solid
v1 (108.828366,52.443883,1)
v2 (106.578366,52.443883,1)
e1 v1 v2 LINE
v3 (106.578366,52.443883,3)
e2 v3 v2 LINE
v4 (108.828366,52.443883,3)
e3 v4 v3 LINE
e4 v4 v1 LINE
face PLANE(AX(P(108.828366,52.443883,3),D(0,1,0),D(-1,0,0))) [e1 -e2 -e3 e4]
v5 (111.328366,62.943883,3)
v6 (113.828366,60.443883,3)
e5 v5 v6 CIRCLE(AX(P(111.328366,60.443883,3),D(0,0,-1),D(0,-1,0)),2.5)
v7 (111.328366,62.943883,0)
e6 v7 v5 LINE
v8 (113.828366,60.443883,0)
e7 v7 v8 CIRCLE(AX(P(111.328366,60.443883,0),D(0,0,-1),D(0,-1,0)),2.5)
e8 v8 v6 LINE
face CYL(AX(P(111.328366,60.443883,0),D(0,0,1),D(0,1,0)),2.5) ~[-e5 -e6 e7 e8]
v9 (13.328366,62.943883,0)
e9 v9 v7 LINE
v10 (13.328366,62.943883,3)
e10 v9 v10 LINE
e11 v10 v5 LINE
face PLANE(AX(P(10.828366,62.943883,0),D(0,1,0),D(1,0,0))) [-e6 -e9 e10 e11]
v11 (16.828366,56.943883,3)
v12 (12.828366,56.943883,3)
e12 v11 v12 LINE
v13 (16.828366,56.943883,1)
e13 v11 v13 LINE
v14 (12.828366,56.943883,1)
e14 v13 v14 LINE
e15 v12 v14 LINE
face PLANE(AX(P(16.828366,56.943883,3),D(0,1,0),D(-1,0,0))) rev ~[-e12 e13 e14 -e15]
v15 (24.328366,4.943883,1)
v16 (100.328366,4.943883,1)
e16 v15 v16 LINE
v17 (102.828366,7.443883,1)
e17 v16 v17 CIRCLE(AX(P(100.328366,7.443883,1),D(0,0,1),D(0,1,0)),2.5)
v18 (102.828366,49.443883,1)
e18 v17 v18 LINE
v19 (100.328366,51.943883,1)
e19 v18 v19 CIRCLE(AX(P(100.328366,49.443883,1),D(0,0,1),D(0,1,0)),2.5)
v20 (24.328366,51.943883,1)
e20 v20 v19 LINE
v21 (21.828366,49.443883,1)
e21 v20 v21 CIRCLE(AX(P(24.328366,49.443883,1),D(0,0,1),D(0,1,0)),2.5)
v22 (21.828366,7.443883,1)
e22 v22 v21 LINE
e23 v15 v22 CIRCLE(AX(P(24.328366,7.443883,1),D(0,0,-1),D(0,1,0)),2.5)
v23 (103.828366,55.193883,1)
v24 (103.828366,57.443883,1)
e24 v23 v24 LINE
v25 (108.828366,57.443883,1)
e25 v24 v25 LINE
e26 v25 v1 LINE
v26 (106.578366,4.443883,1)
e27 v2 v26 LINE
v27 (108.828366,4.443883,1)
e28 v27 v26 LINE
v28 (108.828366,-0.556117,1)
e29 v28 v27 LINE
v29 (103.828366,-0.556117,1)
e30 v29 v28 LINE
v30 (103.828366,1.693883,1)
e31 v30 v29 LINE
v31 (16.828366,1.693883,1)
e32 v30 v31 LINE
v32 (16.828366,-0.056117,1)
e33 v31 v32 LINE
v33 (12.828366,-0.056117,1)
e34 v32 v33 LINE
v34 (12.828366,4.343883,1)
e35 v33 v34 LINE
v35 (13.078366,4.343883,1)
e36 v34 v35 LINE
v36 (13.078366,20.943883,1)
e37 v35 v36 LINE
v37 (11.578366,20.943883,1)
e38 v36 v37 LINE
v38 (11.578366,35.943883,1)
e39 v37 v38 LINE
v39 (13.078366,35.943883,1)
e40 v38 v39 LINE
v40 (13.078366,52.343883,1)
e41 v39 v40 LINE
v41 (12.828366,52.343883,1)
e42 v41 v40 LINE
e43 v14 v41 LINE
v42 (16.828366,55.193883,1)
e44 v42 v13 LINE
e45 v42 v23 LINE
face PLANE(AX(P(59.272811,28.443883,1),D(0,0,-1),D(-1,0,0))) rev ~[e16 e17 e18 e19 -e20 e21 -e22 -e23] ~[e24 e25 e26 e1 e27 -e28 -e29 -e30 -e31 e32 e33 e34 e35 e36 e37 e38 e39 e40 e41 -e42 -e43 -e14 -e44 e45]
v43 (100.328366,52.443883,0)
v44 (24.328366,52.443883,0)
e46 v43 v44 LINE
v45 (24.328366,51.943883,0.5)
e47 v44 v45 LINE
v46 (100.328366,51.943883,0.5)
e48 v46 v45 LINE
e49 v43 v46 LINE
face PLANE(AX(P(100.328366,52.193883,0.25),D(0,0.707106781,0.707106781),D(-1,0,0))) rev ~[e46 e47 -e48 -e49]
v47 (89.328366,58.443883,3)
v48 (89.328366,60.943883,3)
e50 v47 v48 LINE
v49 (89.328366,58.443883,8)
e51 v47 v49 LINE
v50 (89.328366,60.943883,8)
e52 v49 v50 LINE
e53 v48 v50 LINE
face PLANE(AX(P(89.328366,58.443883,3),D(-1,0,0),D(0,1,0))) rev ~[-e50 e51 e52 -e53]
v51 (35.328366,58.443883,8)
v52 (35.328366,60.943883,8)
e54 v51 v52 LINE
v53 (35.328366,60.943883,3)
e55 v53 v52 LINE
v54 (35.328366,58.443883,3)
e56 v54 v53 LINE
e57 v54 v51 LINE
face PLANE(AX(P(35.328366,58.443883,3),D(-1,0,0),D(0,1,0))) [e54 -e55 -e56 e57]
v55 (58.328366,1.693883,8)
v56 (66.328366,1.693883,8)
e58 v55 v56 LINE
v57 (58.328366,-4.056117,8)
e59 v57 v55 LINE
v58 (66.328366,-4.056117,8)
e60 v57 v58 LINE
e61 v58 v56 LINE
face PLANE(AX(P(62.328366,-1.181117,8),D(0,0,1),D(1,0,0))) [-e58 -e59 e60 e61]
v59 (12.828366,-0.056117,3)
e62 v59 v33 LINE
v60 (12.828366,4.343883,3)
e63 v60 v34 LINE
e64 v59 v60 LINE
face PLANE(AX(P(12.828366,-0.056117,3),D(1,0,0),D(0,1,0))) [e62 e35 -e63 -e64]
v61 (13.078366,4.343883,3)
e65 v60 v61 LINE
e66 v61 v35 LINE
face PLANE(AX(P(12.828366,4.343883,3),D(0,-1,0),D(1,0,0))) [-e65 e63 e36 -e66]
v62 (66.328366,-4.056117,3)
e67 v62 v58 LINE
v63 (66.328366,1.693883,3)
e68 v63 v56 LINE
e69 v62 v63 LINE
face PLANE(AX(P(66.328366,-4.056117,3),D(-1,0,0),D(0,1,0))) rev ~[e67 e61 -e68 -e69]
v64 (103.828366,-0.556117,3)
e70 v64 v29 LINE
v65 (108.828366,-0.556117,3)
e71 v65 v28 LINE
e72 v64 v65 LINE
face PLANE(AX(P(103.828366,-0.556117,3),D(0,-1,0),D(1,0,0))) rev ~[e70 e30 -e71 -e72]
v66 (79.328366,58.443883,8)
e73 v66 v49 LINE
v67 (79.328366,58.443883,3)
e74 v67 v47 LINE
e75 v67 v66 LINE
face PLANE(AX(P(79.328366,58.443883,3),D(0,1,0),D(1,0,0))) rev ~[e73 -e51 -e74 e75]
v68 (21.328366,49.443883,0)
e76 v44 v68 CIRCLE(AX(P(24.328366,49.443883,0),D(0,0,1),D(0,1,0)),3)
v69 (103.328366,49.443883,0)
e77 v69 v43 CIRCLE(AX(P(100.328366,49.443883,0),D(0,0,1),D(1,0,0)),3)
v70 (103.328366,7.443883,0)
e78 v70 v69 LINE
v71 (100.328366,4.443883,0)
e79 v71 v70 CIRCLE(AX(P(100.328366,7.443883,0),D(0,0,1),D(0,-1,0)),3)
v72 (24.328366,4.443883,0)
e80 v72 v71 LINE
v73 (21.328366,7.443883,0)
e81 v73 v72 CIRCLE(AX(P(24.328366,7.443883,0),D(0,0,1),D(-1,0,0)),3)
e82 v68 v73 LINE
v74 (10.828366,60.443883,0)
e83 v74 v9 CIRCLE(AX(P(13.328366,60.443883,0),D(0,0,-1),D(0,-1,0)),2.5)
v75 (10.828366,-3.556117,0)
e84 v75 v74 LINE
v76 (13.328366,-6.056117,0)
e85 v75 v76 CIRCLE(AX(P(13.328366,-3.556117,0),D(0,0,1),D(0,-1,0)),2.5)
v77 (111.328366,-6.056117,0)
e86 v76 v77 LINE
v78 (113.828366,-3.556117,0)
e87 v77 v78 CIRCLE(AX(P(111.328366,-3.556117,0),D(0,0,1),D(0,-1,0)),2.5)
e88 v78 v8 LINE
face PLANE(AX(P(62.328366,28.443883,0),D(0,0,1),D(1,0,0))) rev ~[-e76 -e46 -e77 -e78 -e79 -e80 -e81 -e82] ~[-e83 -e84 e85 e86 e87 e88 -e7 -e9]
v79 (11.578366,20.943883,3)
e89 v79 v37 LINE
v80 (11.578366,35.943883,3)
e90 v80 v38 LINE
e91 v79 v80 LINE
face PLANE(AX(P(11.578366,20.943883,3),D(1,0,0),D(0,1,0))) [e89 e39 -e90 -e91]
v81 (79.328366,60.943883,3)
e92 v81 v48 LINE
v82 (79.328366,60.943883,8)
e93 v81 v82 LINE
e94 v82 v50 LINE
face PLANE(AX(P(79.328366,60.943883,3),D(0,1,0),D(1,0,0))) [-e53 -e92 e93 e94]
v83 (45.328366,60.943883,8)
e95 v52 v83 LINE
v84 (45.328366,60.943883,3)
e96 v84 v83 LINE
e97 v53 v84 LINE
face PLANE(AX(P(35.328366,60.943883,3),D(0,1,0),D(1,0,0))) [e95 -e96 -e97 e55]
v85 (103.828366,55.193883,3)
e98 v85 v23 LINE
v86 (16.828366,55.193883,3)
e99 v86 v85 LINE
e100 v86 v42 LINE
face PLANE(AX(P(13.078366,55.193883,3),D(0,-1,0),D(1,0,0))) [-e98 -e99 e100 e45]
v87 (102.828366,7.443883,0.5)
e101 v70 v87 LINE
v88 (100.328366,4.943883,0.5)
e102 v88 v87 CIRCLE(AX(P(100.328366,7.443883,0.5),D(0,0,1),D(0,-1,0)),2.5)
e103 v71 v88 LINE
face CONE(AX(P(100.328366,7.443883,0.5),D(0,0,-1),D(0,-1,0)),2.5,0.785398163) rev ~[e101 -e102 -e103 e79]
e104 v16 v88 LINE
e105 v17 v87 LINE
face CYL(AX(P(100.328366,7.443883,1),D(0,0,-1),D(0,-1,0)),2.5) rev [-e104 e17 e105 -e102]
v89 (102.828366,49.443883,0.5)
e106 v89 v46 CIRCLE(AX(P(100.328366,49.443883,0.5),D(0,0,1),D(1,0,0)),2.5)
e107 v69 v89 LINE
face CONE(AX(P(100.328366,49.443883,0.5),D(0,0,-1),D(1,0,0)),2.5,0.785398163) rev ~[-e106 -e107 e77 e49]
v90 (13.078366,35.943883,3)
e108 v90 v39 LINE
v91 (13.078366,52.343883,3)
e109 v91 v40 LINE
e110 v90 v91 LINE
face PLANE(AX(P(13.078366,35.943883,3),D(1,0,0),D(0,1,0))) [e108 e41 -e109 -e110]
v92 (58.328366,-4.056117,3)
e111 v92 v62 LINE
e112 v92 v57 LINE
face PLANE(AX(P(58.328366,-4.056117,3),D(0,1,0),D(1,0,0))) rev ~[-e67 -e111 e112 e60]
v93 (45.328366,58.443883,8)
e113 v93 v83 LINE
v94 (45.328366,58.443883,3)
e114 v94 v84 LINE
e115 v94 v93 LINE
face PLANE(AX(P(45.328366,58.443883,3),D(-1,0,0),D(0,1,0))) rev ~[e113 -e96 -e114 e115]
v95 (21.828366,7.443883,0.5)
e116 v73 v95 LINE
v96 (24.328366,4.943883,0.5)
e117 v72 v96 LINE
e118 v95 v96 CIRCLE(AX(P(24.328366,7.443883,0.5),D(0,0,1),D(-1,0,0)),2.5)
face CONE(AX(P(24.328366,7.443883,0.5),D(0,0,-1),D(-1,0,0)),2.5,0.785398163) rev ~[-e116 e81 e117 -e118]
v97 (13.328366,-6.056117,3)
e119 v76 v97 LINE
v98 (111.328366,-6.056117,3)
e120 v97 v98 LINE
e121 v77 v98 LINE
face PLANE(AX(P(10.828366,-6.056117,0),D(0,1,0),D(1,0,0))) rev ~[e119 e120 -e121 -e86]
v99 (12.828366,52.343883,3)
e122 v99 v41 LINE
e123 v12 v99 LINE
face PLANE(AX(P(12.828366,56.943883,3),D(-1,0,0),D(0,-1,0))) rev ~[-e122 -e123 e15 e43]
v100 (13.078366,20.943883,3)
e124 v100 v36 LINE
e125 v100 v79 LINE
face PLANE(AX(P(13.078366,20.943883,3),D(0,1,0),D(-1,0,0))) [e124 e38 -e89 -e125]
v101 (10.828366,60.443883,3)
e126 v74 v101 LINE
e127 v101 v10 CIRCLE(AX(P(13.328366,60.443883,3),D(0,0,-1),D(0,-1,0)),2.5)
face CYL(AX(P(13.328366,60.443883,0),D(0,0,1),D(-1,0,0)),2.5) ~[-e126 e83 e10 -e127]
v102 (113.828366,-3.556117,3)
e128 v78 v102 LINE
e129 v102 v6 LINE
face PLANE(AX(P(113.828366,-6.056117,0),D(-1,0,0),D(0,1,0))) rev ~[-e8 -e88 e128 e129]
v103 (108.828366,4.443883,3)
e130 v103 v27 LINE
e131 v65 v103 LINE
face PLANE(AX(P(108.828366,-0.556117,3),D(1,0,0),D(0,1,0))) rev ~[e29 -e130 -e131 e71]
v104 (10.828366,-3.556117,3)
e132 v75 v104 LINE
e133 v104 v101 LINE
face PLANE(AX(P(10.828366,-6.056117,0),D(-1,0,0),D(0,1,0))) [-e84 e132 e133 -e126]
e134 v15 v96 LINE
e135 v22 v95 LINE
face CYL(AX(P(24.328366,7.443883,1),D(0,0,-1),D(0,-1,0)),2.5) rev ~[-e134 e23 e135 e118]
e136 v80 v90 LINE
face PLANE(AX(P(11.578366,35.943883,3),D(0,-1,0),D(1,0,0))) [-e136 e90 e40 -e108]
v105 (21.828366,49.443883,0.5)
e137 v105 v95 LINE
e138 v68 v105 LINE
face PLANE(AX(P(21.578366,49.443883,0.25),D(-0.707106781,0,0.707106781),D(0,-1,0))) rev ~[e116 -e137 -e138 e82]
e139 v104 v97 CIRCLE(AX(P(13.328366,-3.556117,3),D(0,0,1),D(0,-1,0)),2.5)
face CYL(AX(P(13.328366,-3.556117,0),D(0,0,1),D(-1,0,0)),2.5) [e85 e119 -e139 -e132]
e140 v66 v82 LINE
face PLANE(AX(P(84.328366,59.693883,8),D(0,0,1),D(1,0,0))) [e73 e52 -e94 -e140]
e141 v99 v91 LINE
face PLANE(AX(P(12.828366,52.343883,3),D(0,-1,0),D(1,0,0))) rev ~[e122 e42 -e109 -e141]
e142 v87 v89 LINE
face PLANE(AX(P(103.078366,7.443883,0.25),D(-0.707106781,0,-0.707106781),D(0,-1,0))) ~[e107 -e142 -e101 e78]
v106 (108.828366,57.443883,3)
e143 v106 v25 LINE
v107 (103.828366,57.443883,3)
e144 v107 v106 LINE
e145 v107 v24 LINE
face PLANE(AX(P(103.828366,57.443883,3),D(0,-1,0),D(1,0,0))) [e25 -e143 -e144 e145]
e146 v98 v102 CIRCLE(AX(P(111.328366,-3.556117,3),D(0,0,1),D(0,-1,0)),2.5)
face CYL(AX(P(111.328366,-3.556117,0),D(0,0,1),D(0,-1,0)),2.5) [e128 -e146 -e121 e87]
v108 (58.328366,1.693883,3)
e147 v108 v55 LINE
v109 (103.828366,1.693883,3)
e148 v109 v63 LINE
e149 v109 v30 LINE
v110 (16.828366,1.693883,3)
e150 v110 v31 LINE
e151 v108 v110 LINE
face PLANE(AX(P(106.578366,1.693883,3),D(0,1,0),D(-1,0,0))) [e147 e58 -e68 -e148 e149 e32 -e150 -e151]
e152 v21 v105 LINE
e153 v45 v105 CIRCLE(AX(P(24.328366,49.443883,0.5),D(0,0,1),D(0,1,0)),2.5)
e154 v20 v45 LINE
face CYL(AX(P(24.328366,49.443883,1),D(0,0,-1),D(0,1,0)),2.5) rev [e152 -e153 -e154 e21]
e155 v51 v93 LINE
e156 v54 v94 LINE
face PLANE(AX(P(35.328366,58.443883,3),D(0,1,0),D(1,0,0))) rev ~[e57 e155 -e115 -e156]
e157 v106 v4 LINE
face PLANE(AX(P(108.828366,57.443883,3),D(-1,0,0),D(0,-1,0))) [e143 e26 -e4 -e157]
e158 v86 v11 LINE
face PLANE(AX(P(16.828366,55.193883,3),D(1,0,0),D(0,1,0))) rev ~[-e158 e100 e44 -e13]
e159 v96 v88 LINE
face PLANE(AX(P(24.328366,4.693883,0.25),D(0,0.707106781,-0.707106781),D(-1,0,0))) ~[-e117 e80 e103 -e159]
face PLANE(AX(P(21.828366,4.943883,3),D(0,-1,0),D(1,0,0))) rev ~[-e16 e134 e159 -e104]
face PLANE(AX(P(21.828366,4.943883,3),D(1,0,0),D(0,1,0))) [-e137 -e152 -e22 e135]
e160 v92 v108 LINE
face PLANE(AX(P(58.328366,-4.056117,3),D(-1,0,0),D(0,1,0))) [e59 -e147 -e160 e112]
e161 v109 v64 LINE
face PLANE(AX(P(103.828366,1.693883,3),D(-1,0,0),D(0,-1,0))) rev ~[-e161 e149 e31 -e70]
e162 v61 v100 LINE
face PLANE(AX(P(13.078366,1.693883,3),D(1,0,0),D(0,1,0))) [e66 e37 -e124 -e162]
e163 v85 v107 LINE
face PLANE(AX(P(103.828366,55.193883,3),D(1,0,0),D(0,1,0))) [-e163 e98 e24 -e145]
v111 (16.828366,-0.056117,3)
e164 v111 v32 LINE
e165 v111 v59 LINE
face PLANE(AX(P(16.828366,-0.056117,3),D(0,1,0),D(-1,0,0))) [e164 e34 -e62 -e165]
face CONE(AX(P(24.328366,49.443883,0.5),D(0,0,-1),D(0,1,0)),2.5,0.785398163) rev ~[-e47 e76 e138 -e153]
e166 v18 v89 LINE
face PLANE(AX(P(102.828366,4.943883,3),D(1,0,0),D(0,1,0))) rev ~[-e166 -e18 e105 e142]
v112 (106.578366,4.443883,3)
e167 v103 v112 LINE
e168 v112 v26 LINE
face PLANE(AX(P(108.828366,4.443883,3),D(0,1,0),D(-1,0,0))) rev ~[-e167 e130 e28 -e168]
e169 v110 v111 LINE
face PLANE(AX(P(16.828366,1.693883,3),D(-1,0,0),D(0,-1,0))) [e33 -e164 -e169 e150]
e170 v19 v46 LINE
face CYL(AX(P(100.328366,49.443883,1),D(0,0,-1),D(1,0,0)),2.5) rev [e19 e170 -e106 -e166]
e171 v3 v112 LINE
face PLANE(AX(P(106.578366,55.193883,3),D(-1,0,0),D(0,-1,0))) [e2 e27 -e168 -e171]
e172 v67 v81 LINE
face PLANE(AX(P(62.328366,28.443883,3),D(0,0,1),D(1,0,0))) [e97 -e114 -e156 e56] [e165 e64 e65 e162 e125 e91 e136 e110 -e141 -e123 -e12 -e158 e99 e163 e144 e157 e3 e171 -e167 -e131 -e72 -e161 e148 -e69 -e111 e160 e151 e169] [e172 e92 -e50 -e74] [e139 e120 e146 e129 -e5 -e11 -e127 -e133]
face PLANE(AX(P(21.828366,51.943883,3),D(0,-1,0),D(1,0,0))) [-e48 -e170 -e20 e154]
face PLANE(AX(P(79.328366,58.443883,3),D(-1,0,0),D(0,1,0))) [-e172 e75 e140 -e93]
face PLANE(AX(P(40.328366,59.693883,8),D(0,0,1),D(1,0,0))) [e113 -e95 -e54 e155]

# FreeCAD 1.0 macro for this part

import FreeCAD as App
import Part
import Sketcher


def edges_at(feature, points):
    """Names of the edges that pass closest to the given points."""
    edges = feature.Shape.Edges
    near = lambda p: min(range(len(edges)), key=lambda i: edges[i].distToShape(Part.Vertex(*p))[0])
    return sorted({f"Edge{near(p) + 1}" for p in points})


def add_polygon(sketch, points):
    """Adds a closed chain of lines whose ends are joined by coincident constraints."""
    first, n = sketch.GeometryCount, len(points)
    for a, b in zip(points, points[1:] + points[:1]):
        sketch.addGeometry(Part.LineSegment(App.Vector(*a, 0), App.Vector(*b, 0)), False)
    for i in range(n):
        sketch.addConstraint(Sketcher.Constraint("Coincident", first + i, 2, first + (i + 1) % n, 1))

doc = App.newDocument("Part")
body = doc.addObject("PartDesign::Body", "Body")

# Sketch on XY plane
sketch1 = doc.addObject("Sketcher::SketchObject", "Sketch")
body.addObject(sketch1)
sketch1.AttachmentSupport = (doc.XY_Plane, [""])
sketch1.MapMode = "FlatFace"
add_polygon(sketch1, [(11, 63), (11, -6), (114, -6), (114, 63)])  # lines 0-3
sketch1.addConstraint([
    Sketcher.Constraint("Vertical", 0),
    Sketcher.Constraint("Horizontal", 1),
    Sketcher.Constraint("Vertical", 2),
    Sketcher.Constraint("Horizontal", 3),
    Sketcher.Constraint("DistanceX", 1, 1, 1, 2, 103.0),
    Sketcher.Constraint("DistanceY", 0, 2, 0, 1, 69.0),
    Sketcher.Constraint("DistanceX", -1, 1, 0, 2, 10.828366),
    Sketcher.Constraint("DistanceY", 0, 2, -1, 1, 6.056117),
])
pad1 = doc.addObject("PartDesign::Pad", "Pad")
body.addObject(pad1)
pad1.Profile = sketch1
pad1.Length = 3

# Sketch on XY plane
sketch2 = doc.addObject("Sketcher::SketchObject", "Sketch001")
body.addObject(sketch2)
sketch2.AttachmentSupport = (doc.XY_Plane, [""])
sketch2.MapMode = "FlatFace"
sketch2.AttachmentOffset = App.Placement(App.Vector(0, 0, 3), App.Rotation())
add_polygon(sketch2, [(22, 52), (22, 5), (103, 5), (103, 52)])  # lines 0-3
sketch2.addConstraint([
    Sketcher.Constraint("Vertical", 0),
    Sketcher.Constraint("Horizontal", 1),
    Sketcher.Constraint("Vertical", 2),
    Sketcher.Constraint("Horizontal", 3),
    Sketcher.Constraint("DistanceX", 1, 1, 1, 2, 81.0),
    Sketcher.Constraint("DistanceY", 0, 2, 0, 1, 47.0),
    Sketcher.Constraint("DistanceX", -1, 1, 0, 2, 21.828366),
    Sketcher.Constraint("DistanceY", -1, 1, 0, 2, 4.943883),
])
pocket1 = doc.addObject("PartDesign::Pocket", "Pocket")
body.addObject(pocket1)
pocket1.Profile = sketch2
pocket1.Length = 3

# Sketch on XY plane
sketch3 = doc.addObject("Sketcher::SketchObject", "Sketch002")
body.addObject(sketch3)
sketch3.AttachmentSupport = (doc.XY_Plane, [""])
sketch3.MapMode = "FlatFace"
sketch3.AttachmentOffset = App.Placement(App.Vector(0, 0, 3), App.Rotation())
add_polygon(sketch3, [(106.6, 55.2), (13.1, 55.2), (13.1, 35.9), (11.6, 35.9), (11.6, 20.9), (13.1, 20.9), (13.1, 1.7), (106.6, 1.7)])  # lines 0-7
sketch3.addConstraint([
    Sketcher.Constraint("Horizontal", 0),
    Sketcher.Constraint("Vertical", 1),
    Sketcher.Constraint("Horizontal", 2),
    Sketcher.Constraint("Vertical", 3),
    Sketcher.Constraint("Horizontal", 4),
    Sketcher.Constraint("Vertical", 5),
    Sketcher.Constraint("Horizontal", 6),
    Sketcher.Constraint("Vertical", 7),
    Sketcher.Constraint("Vertical", 1, 2, 4, 2),
    Sketcher.Constraint("Equal", 1, 5),
    Sketcher.Constraint("DistanceY", 3, 2, 3, 1, 15.0),
    Sketcher.Constraint("DistanceX", 0, 2, 0, 1, 93.5),
    Sketcher.Constraint("DistanceX", 2, 2, 2, 1, 1.5),
    Sketcher.Constraint("DistanceY", 7, 1, 7, 2, 53.5),
    Sketcher.Constraint("DistanceX", -1, 1, 0, 2, 13.078366),
    Sketcher.Constraint("DistanceY", -1, 1, 0, 2, 55.193883),
])
pocket2 = doc.addObject("PartDesign::Pocket", "Pocket001")
body.addObject(pocket2)
pocket2.Profile = sketch3
pocket2.Length = 2
doc.recompute()

fillet = doc.addObject("PartDesign::Fillet", "Fillet")
body.addObject(fillet)
fillet.Base = (pocket2, edges_at(pocket2, [
    (113.828, -6.056, 1.5),
    (10.828, -6.056, 1.5),
    (10.828, 62.944, 1.5),
    (113.828, 62.944, 1.5),
]))
fillet.Radius = 2.5
doc.recompute()

fillet2 = doc.addObject("PartDesign::Fillet", "Fillet001")
body.addObject(fillet2)
fillet2.Base = (fillet, edges_at(fillet, [
    (21.828, 4.944, 0.5),
    (21.828, 51.944, 0.5),
    (102.828, 51.944, 0.5),
    (102.828, 4.944, 0.5),
]))
fillet2.Radius = 2.5
doc.recompute()

chamfer = doc.addObject("PartDesign::Chamfer", "Chamfer")
body.addObject(chamfer)
chamfer.Base = (fillet2, edges_at(fillet2, [
    (62.328, 4.944, 0),
    (102.828, 28.444, 0),
    (22.561, 51.212, 0),
    (22.561, 5.676, 0),
    (102.096, 5.676, 0),
    (102.096, 51.212, 0),
    (21.828, 28.444, 0),
    (62.328, 51.944, 0),
]))
chamfer.Size = 0.5

# Sketch on XY plane
sketch4 = doc.addObject("Sketcher::SketchObject", "Sketch003")
body.addObject(sketch4)
sketch4.AttachmentSupport = (doc.XY_Plane, [""])
sketch4.MapMode = "FlatFace"
sketch4.AttachmentOffset = App.Placement(App.Vector(0, 0, 3), App.Rotation())
add_polygon(sketch4, [(16.83, 55.19), (16.83, 56.94), (12.83, 56.94), (12.83, 52.34), (13.08, 52.34), (13.08, 55.19)])  # lines 0-5
add_polygon(sketch4, [(103.83, 57.44), (103.83, 55.19), (106.58, 55.19), (106.58, 52.44), (108.83, 52.44), (108.83, 57.44)])  # lines 6-11
add_polygon(sketch4, [(16.83, -0.06), (16.83, 1.69), (13.08, 1.69), (13.08, 4.34), (12.83, 4.34), (12.83, -0.06)])  # lines 12-17
add_polygon(sketch4, [(103.83, 1.69), (103.83, -0.56), (108.83, -0.56), (108.83, 4.44), (106.58, 4.44), (106.58, 1.69)])  # lines 18-23
sketch4.addConstraint([
    Sketcher.Constraint("Vertical", 0),
    Sketcher.Constraint("Horizontal", 1),
    Sketcher.Constraint("Vertical", 2),
    Sketcher.Constraint("Horizontal", 3),
    Sketcher.Constraint("Vertical", 4),
    Sketcher.Constraint("Horizontal", 5),
    Sketcher.Constraint("Vertical", 6),
    Sketcher.Constraint("Horizontal", 7),
    Sketcher.Constraint("Vertical", 8),
    Sketcher.Constraint("Horizontal", 9),
    Sketcher.Constraint("Vertical", 10),
    Sketcher.Constraint("Horizontal", 11),
    Sketcher.Constraint("Vertical", 12),
    Sketcher.Constraint("Horizontal", 13),
    Sketcher.Constraint("Vertical", 14),
    Sketcher.Constraint("Horizontal", 15),
    Sketcher.Constraint("Vertical", 16),
    Sketcher.Constraint("Horizontal", 17),
    Sketcher.Constraint("Vertical", 18),
    Sketcher.Constraint("Horizontal", 19),
    Sketcher.Constraint("Vertical", 20),
    Sketcher.Constraint("Horizontal", 21),
    Sketcher.Constraint("Vertical", 22),
    Sketcher.Constraint("Horizontal", 23),
    Sketcher.Constraint("Horizontal", 5, 2, 6, 2),
    Sketcher.Constraint("Horizontal", 13, 2, 22, 2),
    Sketcher.Constraint("Vertical", 5, 2, 12, 2),
    Sketcher.Constraint("Vertical", 4, 2, 13, 2),
    Sketcher.Constraint("Vertical", 2, 2, 15, 2),
    Sketcher.Constraint("Vertical", 11, 2, 18, 2),
    Sketcher.Constraint("Vertical", 10, 2, 19, 2),
    Sketcher.Constraint("Vertical", 8, 2, 21, 2),
    Sketcher.Constraint("Equal", 21, 6),
    Sketcher.Constraint("Equal", 23, 8),
    Sketcher.Constraint("Equal", 0, 12),
    Sketcher.Constraint("Equal", 6, 18),
    Sketcher.Constraint("Equal", 10, 20),
    Sketcher.Constraint("DistanceX", 1, 2, 1, 1, 4.0),
    Sketcher.Constraint("DistanceX", 11, 2, 11, 1, 5.0),
    Sketcher.Constraint("DistanceY", 2, 2, 2, 1, 4.6),
    Sketcher.Constraint("DistanceY", 16, 2, 16, 1, 4.4),
    Sketcher.Constraint("DistanceX", 5, 2, 6, 2, 87.0),
    Sketcher.Constraint("DistanceY", 14, 2, 3, 2, 48.0),
    Sketcher.Constraint("DistanceY", 18, 2, 8, 2, 53.0),
    Sketcher.Constraint("DistanceX", 3, 1, 3, 2, 0.25),
    Sketcher.Constraint("DistanceX", 7, 1, 7, 2, 2.75),
    Sketcher.Constraint("DistanceX", -1, 1, 0, 2, 16.828366),
    Sketcher.Constraint("DistanceY", -1, 1, 0, 2, 56.943883),
])
pocket3 = doc.addObject("PartDesign::Pocket", "Pocket002")
body.addObject(pocket3)
pocket3.Profile = sketch4
pocket3.Length = 2

# Sketch on XY plane
sketch5 = doc.addObject("Sketcher::SketchObject", "Sketch004")
body.addObject(sketch5)
sketch5.AttachmentSupport = (doc.XY_Plane, [""])
sketch5.MapMode = "FlatFace"
sketch5.AttachmentOffset = App.Placement(App.Vector(0, 0, 3), App.Rotation())
add_polygon(sketch5, [(79.3, 60.9), (79.3, 58.4), (89.3, 58.4), (89.3, 60.9)])  # lines 0-3
add_polygon(sketch5, [(35.3, 60.9), (35.3, 58.4), (45.3, 58.4), (45.3, 60.9)])  # lines 4-7
sketch5.addConstraint([
    Sketcher.Constraint("Vertical", 0),
    Sketcher.Constraint("Horizontal", 1),
    Sketcher.Constraint("Vertical", 2),
    Sketcher.Constraint("Horizontal", 3),
    Sketcher.Constraint("Vertical", 4),
    Sketcher.Constraint("Horizontal", 5),
    Sketcher.Constraint("Vertical", 6),
    Sketcher.Constraint("Horizontal", 7),
    Sketcher.Constraint("Horizontal", 1, 2, 4, 2),
    Sketcher.Constraint("Horizontal", 3, 2, 6, 2),
    Sketcher.Constraint("Equal", 3, 5),
    Sketcher.Constraint("DistanceX", 1, 1, 1, 2, 10.0),
    Sketcher.Constraint("DistanceY", 0, 2, 0, 1, 2.5),
    Sketcher.Constraint("DistanceX", 4, 2, 0, 2, 44.0),
    Sketcher.Constraint("DistanceX", -1, 1, 0, 2, 79.328366),
    Sketcher.Constraint("DistanceY", -1, 1, 0, 2, 58.443883),
])
pad2 = doc.addObject("PartDesign::Pad", "Pad001")
body.addObject(pad2)
pad2.Profile = sketch5
pad2.Length = 5

# Sketch on XY plane
sketch6 = doc.addObject("Sketcher::SketchObject", "Sketch005")
body.addObject(sketch6)
sketch6.AttachmentSupport = (doc.XY_Plane, [""])
sketch6.MapMode = "FlatFace"
sketch6.AttachmentOffset = App.Placement(App.Vector(0, 0, 3), App.Rotation())
add_polygon(sketch6, [(58, 2), (58, -4), (66, -4), (66, 2)])  # lines 0-3
sketch6.addConstraint([
    Sketcher.Constraint("Vertical", 0),
    Sketcher.Constraint("Horizontal", 1),
    Sketcher.Constraint("Vertical", 2),
    Sketcher.Constraint("Horizontal", 3),
    Sketcher.Constraint("DistanceX", 1, 1, 1, 2, 8.0),
    Sketcher.Constraint("DistanceY", 0, 2, 0, 1, 5.75),
    Sketcher.Constraint("DistanceX", -1, 1, 0, 2, 58.328366),
    Sketcher.Constraint("DistanceY", 0, 2, -1, 1, 4.056117),
])
pad3 = doc.addObject("PartDesign::Pad", "Pad002")
body.addObject(pad3)
pad3.Profile = sketch6
pad3.Length = 5

doc.recompute()
